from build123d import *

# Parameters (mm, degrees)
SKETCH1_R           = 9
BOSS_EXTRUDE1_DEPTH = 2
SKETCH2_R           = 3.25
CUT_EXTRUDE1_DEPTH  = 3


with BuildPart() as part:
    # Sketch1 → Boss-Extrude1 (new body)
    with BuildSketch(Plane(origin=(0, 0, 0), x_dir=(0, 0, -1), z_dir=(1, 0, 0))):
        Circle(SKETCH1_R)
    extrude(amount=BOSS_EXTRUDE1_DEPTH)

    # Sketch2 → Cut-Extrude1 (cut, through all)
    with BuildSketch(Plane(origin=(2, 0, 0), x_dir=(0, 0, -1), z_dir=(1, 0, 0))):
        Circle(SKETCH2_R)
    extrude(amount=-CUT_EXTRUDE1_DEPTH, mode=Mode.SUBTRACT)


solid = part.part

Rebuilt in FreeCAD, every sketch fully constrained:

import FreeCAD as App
import Part
import Sketcher
Q = App.Units.Quantity

doc = App.newDocument("Part")
body = doc.addObject("PartDesign::Body", "Body")

sketch1 = body.newObject("Sketcher::SketchObject", "Sketch")
sketch1.AttachmentSupport = (doc.getObject("YZ_Plane"), [""])
sketch1.MapMode = "FlatFace"
sketch1.addGeometry(Part.Circle(App.Vector(0, 0, 0), App.Vector(0, 0, 1), 9), False)
sketch1.addConstraint(Sketcher.Constraint("Coincident", 0, 3, -1, 1))
sketch1.addConstraint(Sketcher.Constraint("Diameter", 0, Q("18 mm")))
pad1 = body.newObject("PartDesign::Pad", "Pad")
pad1.Profile = sketch1
pad1.Length = 2

sketch2 = body.newObject("Sketcher::SketchObject", "Sketch001")
sketch2.AttachmentSupport = (doc.getObject("YZ_Plane"), [""])
sketch2.MapMode = "FlatFace"
sketch2.AttachmentOffset = App.Placement(App.Vector(0, 0, 2), App.Rotation())
sketch2.addGeometry(Part.Circle(App.Vector(0, 0, 0), App.Vector(0, 0, 1), 3.2), False)
sketch2.addConstraint(Sketcher.Constraint("Coincident", 0, 3, -1, 1))
sketch2.addConstraint(Sketcher.Constraint("Diameter", 0, Q("6.5 mm")))
pocket1 = body.newObject("PartDesign::Pocket", "Pocket")
pocket1.Profile = sketch2
pocket1.Type = "ThroughAll"

doc.recompute()
